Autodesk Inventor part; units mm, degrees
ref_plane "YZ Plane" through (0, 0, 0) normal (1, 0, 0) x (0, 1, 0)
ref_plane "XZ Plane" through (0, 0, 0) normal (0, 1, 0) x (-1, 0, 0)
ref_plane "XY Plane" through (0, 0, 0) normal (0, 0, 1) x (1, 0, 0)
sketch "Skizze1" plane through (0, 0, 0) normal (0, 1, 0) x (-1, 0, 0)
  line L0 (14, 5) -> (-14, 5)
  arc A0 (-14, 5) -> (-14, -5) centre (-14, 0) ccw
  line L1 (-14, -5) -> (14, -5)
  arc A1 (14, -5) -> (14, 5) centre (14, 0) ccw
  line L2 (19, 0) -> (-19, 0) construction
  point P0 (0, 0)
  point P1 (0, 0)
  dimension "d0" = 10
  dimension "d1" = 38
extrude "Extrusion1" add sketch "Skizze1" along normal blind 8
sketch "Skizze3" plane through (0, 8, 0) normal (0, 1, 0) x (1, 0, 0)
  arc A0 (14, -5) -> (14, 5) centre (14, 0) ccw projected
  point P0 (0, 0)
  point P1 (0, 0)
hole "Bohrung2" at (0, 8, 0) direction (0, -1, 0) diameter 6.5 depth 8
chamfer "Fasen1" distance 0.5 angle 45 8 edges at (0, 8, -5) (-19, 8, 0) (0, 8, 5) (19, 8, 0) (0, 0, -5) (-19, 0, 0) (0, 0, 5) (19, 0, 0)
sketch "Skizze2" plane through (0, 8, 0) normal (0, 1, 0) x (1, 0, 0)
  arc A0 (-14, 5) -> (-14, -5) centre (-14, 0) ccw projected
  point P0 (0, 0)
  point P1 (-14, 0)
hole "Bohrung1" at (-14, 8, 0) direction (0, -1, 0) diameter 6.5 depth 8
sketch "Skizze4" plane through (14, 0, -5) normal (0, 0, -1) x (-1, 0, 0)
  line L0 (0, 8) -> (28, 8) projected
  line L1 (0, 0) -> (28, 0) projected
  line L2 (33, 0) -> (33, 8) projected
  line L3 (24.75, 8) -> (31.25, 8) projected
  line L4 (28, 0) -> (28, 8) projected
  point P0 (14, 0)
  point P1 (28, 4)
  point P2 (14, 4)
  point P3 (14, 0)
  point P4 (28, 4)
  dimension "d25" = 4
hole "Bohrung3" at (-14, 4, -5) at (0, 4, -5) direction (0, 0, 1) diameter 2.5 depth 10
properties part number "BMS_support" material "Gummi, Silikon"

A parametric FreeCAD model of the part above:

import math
import FreeCAD as App
import Part
import Sketcher
Q = App.Units.Quantity


def edges_at(feature, points):
    """Names of the edges that pass closest to the given points."""
    edges = feature.Shape.Edges
    near = lambda p: min(range(len(edges)), key=lambda i: edges[i].distToShape(Part.Vertex(*p))[0])
    return sorted({f"Edge{near(p) + 1}" for p in points})

doc = App.newDocument("Part")
body = doc.addObject("PartDesign::Body", "Body")

# Sketch on XZ plane
sketch1 = body.newObject("Sketcher::SketchObject", "Sketch")
sketch1.AttachmentSupport = (doc.getObject("XZ_Plane"), [""])
sketch1.MapMode = "FlatFace"
sketch1.addGeometry(Part.ArcOfCircle(Part.Circle(App.Vector(-14, 0, 0), App.Vector(0, 0, 1), 5), math.radians(90), math.radians(270)), False)
sketch1.addGeometry(Part.LineSegment(App.Vector(-14, 5, 0), App.Vector(14, 5, 0)), False)
sketch1.addGeometry(Part.ArcOfCircle(Part.Circle(App.Vector(14, 0, 0), App.Vector(0, 0, 1), 5), math.radians(-90), math.radians(90)), False)
sketch1.addGeometry(Part.LineSegment(App.Vector(14, -5, 0), App.Vector(-14, -5, 0)), False)
sketch1.addConstraint(Sketcher.Constraint("Tangent", 0, 1, 1, 1))
sketch1.addConstraint(Sketcher.Constraint("Tangent", 1, 2, 2, 2))
sketch1.addConstraint(Sketcher.Constraint("Tangent", 2, 1, 3, 1))
sketch1.addConstraint(Sketcher.Constraint("Tangent", 3, 2, 0, 2))
sketch1.addConstraint(Sketcher.Constraint("Horizontal", 1))
sketch1.addConstraint(Sketcher.Constraint("Horizontal", 3))
sketch1.addConstraint(Sketcher.Constraint("Symmetric", 0, 3, 2, 3, -1, 1))
sketch1.addConstraint(Sketcher.Constraint("Radius", 0, Q("5 mm")))
sketch1.addConstraint(Sketcher.Constraint("DistanceX", 1, 1, 1, 2, Q("28 mm")))
pad1 = body.newObject("PartDesign::Pad", "Pad")
pad1.Profile = sketch1
pad1.Length = 8
pad1.Reversed = True

# Sketch on XZ plane
sketch2 = body.newObject("Sketcher::SketchObject", "Sketch001")
sketch2.AttachmentSupport = (doc.getObject("XZ_Plane"), [""])
sketch2.MapMode = "FlatFace"
sketch2.AttachmentOffset = App.Placement(App.Vector(0, 0, -8), App.Rotation())
sketch2.addGeometry(Part.Circle(App.Vector(0, 0, 0), App.Vector(0, 0, 1), 3.25), False)
sketch2.addConstraint(Sketcher.Constraint("Coincident", 0, 3, -1, 1))
sketch2.addConstraint(Sketcher.Constraint("Diameter", 0, Q("6.5 mm")))
doc.recompute()
hole = body.newObject("PartDesign::Hole", "Hole")
hole.Profile = sketch2
hole.ThreadType = "None"
hole.Diameter = 6.5
hole.DepthType = "Dimension"
hole.Depth = 8
hole.DrillPoint = "Flat"
hole.Reversed = True
doc.recompute()

chamfer = body.newObject("PartDesign::Chamfer", "Chamfer")
chamfer.Base = (hole, edges_at(hole, [
    (0, 8, -5),
    (-19, 8, 0),
    (0, 8, 5),
    (19, 8, 0),
    (0, 0, -5),
    (-19, 0, 0),
    (0, 0, 5),
    (19, 0, 0),
]))
chamfer.Size = 0.5

# Sketch on XZ plane
sketch3 = body.newObject("Sketcher::SketchObject", "Sketch002")
sketch3.AttachmentSupport = (doc.getObject("XZ_Plane"), [""])
sketch3.MapMode = "FlatFace"
sketch3.AttachmentOffset = App.Placement(App.Vector(0, 0, -8), App.Rotation())
sketch3.addGeometry(Part.Circle(App.Vector(-14, 0, 0), App.Vector(0, 0, 1), 3.25), False)
sketch3.addConstraint(Sketcher.Constraint("PointOnObject", 0, 3, -1))
sketch3.addConstraint(Sketcher.Constraint("Diameter", 0, Q("6.5 mm")))
sketch3.addConstraint(Sketcher.Constraint("DistanceX", 0, 3, -1, 1, Q("14 mm")))
doc.recompute()
hole2 = body.newObject("PartDesign::Hole", "Hole001")
hole2.Profile = sketch3
hole2.ThreadType = "None"
hole2.Diameter = 6.5
hole2.DepthType = "Dimension"
hole2.Depth = 8
hole2.DrillPoint = "Flat"
hole2.Reversed = True

# Sketch on XY plane
sketch4 = body.newObject("Sketcher::SketchObject", "Sketch003")
sketch4.AttachmentSupport = (doc.getObject("XY_Plane"), [""])
sketch4.MapMode = "FlatFace"
sketch4.AttachmentOffset = App.Placement(App.Vector(0, 0, -5), App.Rotation())
sketch4.addGeometry(Part.Circle(App.Vector(-14, 4, 0), App.Vector(0, 0, 1), 1.25), False)
sketch4.addGeometry(Part.Circle(App.Vector(0, 4, 0), App.Vector(0, 0, 1), 1.25), False)
sketch4.addConstraint(Sketcher.Constraint("Equal", 0, 1))
sketch4.addConstraint(Sketcher.Constraint("PointOnObject", 1, 3, -2))
sketch4.addConstraint(Sketcher.Constraint("Horizontal", 0, 3, 1, 3))
sketch4.addConstraint(Sketcher.Constraint("Diameter", 0, Q("2.5 mm")))
sketch4.addConstraint(Sketcher.Constraint("DistanceX", 0, 3, -1, 1, Q("14 mm")))
sketch4.addConstraint(Sketcher.Constraint("DistanceY", -1, 1, 0, 3, Q("4 mm")))
doc.recompute()
hole3 = body.newObject("PartDesign::Hole", "Hole002")
hole3.Profile = sketch4
hole3.ThreadType = "None"
hole3.Diameter = 2.5
hole3.DepthType = "Dimension"
hole3.Depth = 10
hole3.DrillPoint = "Flat"
hole3.Reversed = True

doc.recompute()
